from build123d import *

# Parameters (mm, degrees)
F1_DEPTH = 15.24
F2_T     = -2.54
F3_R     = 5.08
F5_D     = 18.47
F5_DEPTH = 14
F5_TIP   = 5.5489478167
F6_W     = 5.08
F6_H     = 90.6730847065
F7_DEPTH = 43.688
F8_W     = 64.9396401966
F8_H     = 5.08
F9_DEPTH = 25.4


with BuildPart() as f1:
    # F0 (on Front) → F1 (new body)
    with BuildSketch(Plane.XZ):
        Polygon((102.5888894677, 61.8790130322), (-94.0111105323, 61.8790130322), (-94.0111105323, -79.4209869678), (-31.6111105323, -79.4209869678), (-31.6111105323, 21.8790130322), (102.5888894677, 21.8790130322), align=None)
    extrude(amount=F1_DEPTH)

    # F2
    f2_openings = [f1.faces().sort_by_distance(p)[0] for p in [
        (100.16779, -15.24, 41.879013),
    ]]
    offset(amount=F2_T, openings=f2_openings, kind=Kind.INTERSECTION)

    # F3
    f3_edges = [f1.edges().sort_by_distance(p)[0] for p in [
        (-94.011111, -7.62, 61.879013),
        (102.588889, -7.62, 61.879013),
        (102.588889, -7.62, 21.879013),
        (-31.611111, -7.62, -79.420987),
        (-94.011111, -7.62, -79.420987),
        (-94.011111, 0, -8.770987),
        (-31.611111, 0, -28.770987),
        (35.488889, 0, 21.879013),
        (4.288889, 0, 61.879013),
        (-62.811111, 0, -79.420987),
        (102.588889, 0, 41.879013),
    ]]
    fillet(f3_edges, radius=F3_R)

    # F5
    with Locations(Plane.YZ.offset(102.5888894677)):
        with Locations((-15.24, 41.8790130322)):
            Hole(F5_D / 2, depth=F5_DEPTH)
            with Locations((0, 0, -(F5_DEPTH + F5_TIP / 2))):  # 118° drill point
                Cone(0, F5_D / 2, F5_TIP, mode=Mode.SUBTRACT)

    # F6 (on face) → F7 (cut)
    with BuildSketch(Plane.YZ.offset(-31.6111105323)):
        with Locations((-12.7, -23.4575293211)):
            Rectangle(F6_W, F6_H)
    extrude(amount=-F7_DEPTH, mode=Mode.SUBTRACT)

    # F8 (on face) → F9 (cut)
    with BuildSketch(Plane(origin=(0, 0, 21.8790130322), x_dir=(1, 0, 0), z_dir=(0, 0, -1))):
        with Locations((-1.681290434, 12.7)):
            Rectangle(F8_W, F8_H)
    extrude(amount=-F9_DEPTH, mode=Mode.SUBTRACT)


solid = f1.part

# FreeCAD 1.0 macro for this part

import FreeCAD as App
import Part
import Sketcher
Q = App.Units.Quantity


def edges_at(feature, points):
    """Names of the edges that pass closest to the given points."""
    edges = feature.Shape.Edges
    near = lambda p: min(range(len(edges)), key=lambda i: edges[i].distToShape(Part.Vertex(*p))[0])
    return sorted({f"Edge{near(p) + 1}" for p in points})


def faces_at(feature, points):
    """Names of the faces that lie closest to the given points."""
    faces = feature.Shape.Faces
    near = lambda p: min(range(len(faces)), key=lambda i: faces[i].distToShape(Part.Vertex(*p))[0])
    return sorted({f"Face{near(p) + 1}" for p in points})


def add_polygon(sketch, points):
    """Adds a closed chain of lines whose ends are joined by coincident constraints."""
    first, n = sketch.GeometryCount, len(points)
    for a, b in zip(points, points[1:] + points[:1]):
        sketch.addGeometry(Part.LineSegment(App.Vector(*a, 0), App.Vector(*b, 0)), False)
    for i in range(n):
        sketch.addConstraint(Sketcher.Constraint("Coincident", first + i, 2, first + (i + 1) % n, 1))

doc = App.newDocument("Part")
body = doc.addObject("PartDesign::Body", "Body")

# Sketch on XZ plane
sketch1 = doc.addObject("Sketcher::SketchObject", "Sketch")
body.addObject(sketch1)
sketch1.AttachmentSupport = (doc.XZ_Plane, [""])
sketch1.MapMode = "FlatFace"
add_polygon(sketch1, [(103, 62), (-94, 62), (-94, -79), (-32, -79), (-32, 22), (103, 22)])  # lines 0-5
sketch1.addConstraint(Sketcher.Constraint("Horizontal", 0))
sketch1.addConstraint(Sketcher.Constraint("Vertical", 1))
sketch1.addConstraint(Sketcher.Constraint("Horizontal", 2))
sketch1.addConstraint(Sketcher.Constraint("Vertical", 3))
sketch1.addConstraint(Sketcher.Constraint("Horizontal", 4))
sketch1.addConstraint(Sketcher.Constraint("Vertical", 5))
sketch1.addConstraint(Sketcher.Constraint("DistanceY", 5, 1, 5, 2, Q("40 mm")))
sketch1.addConstraint(Sketcher.Constraint("DistanceX", 0, 2, 0, 1, Q("196.6 mm")))
sketch1.addConstraint(Sketcher.Constraint("DistanceX", 2, 1, 2, 2, Q("62.4 mm")))
sketch1.addConstraint(Sketcher.Constraint("DistanceY", 1, 2, 1, 1, Q("141.3 mm")))
sketch1.addConstraint(Sketcher.Constraint("DistanceX", 0, 2, -1, 1, Q("94.011111 mm")))
sketch1.addConstraint(Sketcher.Constraint("DistanceY", -1, 1, 0, 2, Q("61.879013 mm")))
pad1 = doc.addObject("PartDesign::Pad", "Pad")
body.addObject(pad1)
pad1.Profile = sketch1
pad1.Length = 15.24
doc.recompute()

thickness = doc.addObject("PartDesign::Thickness", "Thickness")
body.addObject(thickness)
thickness.Base = (pad1, faces_at(pad1, [(-35.031, -15.24, -37.031)]))
thickness.Value = 2.54
thickness.Reversed = True
thickness.Join = "Intersection"
doc.recompute()

fillet = doc.addObject("PartDesign::Fillet", "Fillet")
body.addObject(fillet)
fillet.Base = (thickness, edges_at(thickness, [
    (-94.011, -7.62, 61.879),
    (102.589, -7.62, 61.879),
    (102.589, -7.62, 21.879),
    (-31.611, -7.62, -79.421),
    (-94.011, -7.62, -79.421),
    (-94.011, 0, -8.771),
    (-31.611, 0, -28.771),
    (35.489, 0, 21.879),
    (4.289, 0, 61.879),
    (-62.811, 0, -79.421),
    (102.589, 0, 41.879),
]))
fillet.Radius = 5.08

# Sketch on YZ plane
sketch2 = doc.addObject("Sketcher::SketchObject", "Sketch001")
body.addObject(sketch2)
sketch2.AttachmentSupport = (doc.YZ_Plane, [""])
sketch2.MapMode = "FlatFace"
sketch2.AttachmentOffset = App.Placement(App.Vector(0, 0, 102.588889), App.Rotation())
sketch2.addGeometry(Part.Circle(App.Vector(-15, 42, 0), App.Vector(0, 0, 1), 9), False)
sketch2.addConstraint(Sketcher.Constraint("Diameter", 0, Q("18.47 mm")))
sketch2.addConstraint(Sketcher.Constraint("DistanceX", 0, 3, -1, 1, Q("15.24 mm")))
sketch2.addConstraint(Sketcher.Constraint("DistanceY", -1, 1, 0, 3, Q("41.879013 mm")))
doc.recompute()
hole = doc.addObject("PartDesign::Hole", "Hole")
body.addObject(hole)
hole.Profile = sketch2
hole.ThreadType = "None"
hole.Diameter = 18.47
hole.DepthType = "Dimension"
hole.Depth = 14
hole.DrillPoint = "Angled"
hole.DrillPointAngle = 118

# Sketch on YZ plane
sketch3 = doc.addObject("Sketcher::SketchObject", "Sketch002")
body.addObject(sketch3)
sketch3.AttachmentSupport = (doc.YZ_Plane, [""])
sketch3.MapMode = "FlatFace"
sketch3.AttachmentOffset = App.Placement(App.Vector(0, 0, -31.611111), App.Rotation())
add_polygon(sketch3, [(-15, 22), (-15, -69), (-10, -69), (-10, 22)])  # lines 0-3
sketch3.addConstraint(Sketcher.Constraint("Vertical", 0))
sketch3.addConstraint(Sketcher.Constraint("Horizontal", 1))
sketch3.addConstraint(Sketcher.Constraint("Vertical", 2))
sketch3.addConstraint(Sketcher.Constraint("Horizontal", 3))
sketch3.addConstraint(Sketcher.Constraint("DistanceX", 1, 1, 1, 2, Q("5.08 mm")))
sketch3.addConstraint(Sketcher.Constraint("DistanceX", 0, 2, -1, 1, Q("15.24 mm")))
sketch3.addConstraint(Sketcher.Constraint("DistanceY", 0, 2, 0, 1, Q("90.673085 mm")))
sketch3.addConstraint(Sketcher.Constraint("DistanceY", 0, 2, -1, 1, Q("68.794072 mm")))
pocket1 = doc.addObject("PartDesign::Pocket", "Pocket")
body.addObject(pocket1)
pocket1.Profile = sketch3
pocket1.Length = 43.688

# Sketch on XY plane
sketch4 = doc.addObject("Sketcher::SketchObject", "Sketch003")
body.addObject(sketch4)
sketch4.AttachmentSupport = (doc.XY_Plane, [""])
sketch4.MapMode = "FlatFace"
sketch4.AttachmentOffset = App.Placement(App.Vector(0, 0, 21.879013), App.Rotation())
add_polygon(sketch4, [(-34, -15), (-34, -10), (31, -10), (31, -15)])  # lines 0-3
sketch4.addConstraint(Sketcher.Constraint("Vertical", 0))
sketch4.addConstraint(Sketcher.Constraint("Horizontal", 1))
sketch4.addConstraint(Sketcher.Constraint("Vertical", 2))
sketch4.addConstraint(Sketcher.Constraint("Horizontal", 3))
sketch4.addConstraint(Sketcher.Constraint("DistanceY", 0, 1, 0, 2, Q("5.08 mm")))
sketch4.addConstraint(Sketcher.Constraint("DistanceY", 0, 2, -1, 1, Q("10.16 mm")))
sketch4.addConstraint(Sketcher.Constraint("DistanceX", 1, 1, 1, 2, Q("64.93964 mm")))
sketch4.addConstraint(Sketcher.Constraint("DistanceX", 0, 2, -1, 1, Q("34.151111 mm")))
pocket2 = doc.addObject("PartDesign::Pocket", "Pocket001")
body.addObject(pocket2)
pocket2.Profile = sketch4
pocket2.Length = 25.4
pocket2.Reversed = True

doc.recompute()
